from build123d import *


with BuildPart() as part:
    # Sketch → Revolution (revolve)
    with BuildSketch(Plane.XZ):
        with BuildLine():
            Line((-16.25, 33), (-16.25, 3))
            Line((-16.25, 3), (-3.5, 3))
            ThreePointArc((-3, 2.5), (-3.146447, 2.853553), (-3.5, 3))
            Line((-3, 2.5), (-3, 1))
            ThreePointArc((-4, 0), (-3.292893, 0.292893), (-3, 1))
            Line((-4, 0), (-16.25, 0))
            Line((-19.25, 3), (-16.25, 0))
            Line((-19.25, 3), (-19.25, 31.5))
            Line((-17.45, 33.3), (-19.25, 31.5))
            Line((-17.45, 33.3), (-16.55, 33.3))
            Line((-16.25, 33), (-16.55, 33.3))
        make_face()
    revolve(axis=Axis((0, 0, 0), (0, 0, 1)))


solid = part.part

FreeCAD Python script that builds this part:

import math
import FreeCAD as App
import Part
import Sketcher
from FreeCAD import Vector
Q = App.Units.Quantity

doc = App.newDocument("Part")
params = doc.addObject("Spreadsheet::Sheet", "Params")
for row, (alias, value) in enumerate([
    ("sketch1_radius", "0.999999 mm"),
    ("sketch1_radius2", "0.500001 mm"),
    ("sketch1_height", "30 mm"),
    ("sketch1_width", "0.9 mm"),
    ("sketch1_height2", "28.5 mm"),
    ("revolution_angle", "360 deg"),
], start=1):
    params.set(f"A{row}", alias)
    params.set(f"B{row}", "=" + value)
    params.setAlias(f"B{row}", alias)

body = doc.addObject("PartDesign::Body", "Body")

sketch1 = doc.addObject("Sketcher::SketchObject", "Sketch")
body.addObject(sketch1)
sketch1.AttachmentSupport = (doc.XZ_Plane, [""])
sketch1.MapMode = "FlatFace"
sketch1.addGeometry(Part.LineSegment(Vector(-16.25, 3, 0), Vector(-16.25, 33, 0)), False)
sketch1.addGeometry(Part.LineSegment(Vector(-16.25, 33, 0), Vector(-16.55, 33.3, 0)), False)
sketch1.addGeometry(Part.LineSegment(Vector(-16.55, 33.3, 0), Vector(-17.45, 33.3, 0)), False)
sketch1.addGeometry(Part.LineSegment(Vector(-17.45, 33.3, 0), Vector(-19.25, 31.5, 0)), False)
sketch1.addGeometry(Part.LineSegment(Vector(-19.25, 31.5, 0), Vector(-19.25, 3, 0)), False)
sketch1.addGeometry(Part.LineSegment(Vector(-19.25, 3, 0), Vector(-16.25, 0, 0)), False)
sketch1.addGeometry(Part.LineSegment(Vector(-16.25, 0, 0), Vector(-4, 0, 0)), False)
sketch1.addGeometry(Part.ArcOfCircle(Part.Circle(Vector(-4, 1, 0), Vector(0, 0, 1), 1), math.radians(-90), math.radians(0)), False)
sketch1.addGeometry(Part.LineSegment(Vector(-3, 1, 0), Vector(-3, 2.5, 0)), False)
sketch1.addGeometry(Part.ArcOfCircle(Part.Circle(Vector(-3.5, 2.5, 0), Vector(0, 0, 1), 0.5), math.radians(0), math.radians(90)), False)
sketch1.addGeometry(Part.LineSegment(Vector(-3.5, 3, 0), Vector(-16.25, 3, 0)), False)
sketch1.addConstraint(Sketcher.Constraint("Coincident", 0, 2, 1, 1))
sketch1.addConstraint(Sketcher.Constraint("Coincident", 1, 2, 2, 1))
sketch1.addConstraint(Sketcher.Constraint("Coincident", 2, 2, 3, 1))
sketch1.addConstraint(Sketcher.Constraint("Coincident", 3, 2, 4, 1))
sketch1.addConstraint(Sketcher.Constraint("Coincident", 4, 2, 5, 1))
sketch1.addConstraint(Sketcher.Constraint("Coincident", 5, 2, 6, 1))
sketch1.addConstraint(Sketcher.Constraint("Tangent", 6, 2, 7, 1))
sketch1.addConstraint(Sketcher.Constraint("Tangent", 7, 2, 8, 1))
sketch1.addConstraint(Sketcher.Constraint("Coincident", 8, 2, 9, 1))
sketch1.addConstraint(Sketcher.Constraint("Coincident", 9, 2, 10, 1))
sketch1.addConstraint(Sketcher.Constraint("Coincident", 10, 2, 0, 1))
sketch1.addConstraint(Sketcher.Constraint("Vertical", 0))
sketch1.addConstraint(Sketcher.Constraint("Horizontal", 2))
sketch1.addConstraint(Sketcher.Constraint("Vertical", 4))
sketch1.addConstraint(Sketcher.Constraint("Horizontal", 6))
sketch1.addConstraint(Sketcher.Constraint("Vertical", 8))
sketch1.addConstraint(Sketcher.Constraint("Horizontal", 10))
sketch1.addConstraint(Sketcher.Constraint("PointOnObject", 5, 2, -1))
sketch1.addConstraint(Sketcher.Constraint("Perpendicular", 1, 3))
sketch1.addConstraint(Sketcher.Constraint("Perpendicular", 3, 5))
sketch1.addConstraint(Sketcher.Constraint("Horizontal", 9, 3, 8, 2))
sketch1.addConstraint(Sketcher.Constraint("Horizontal", 4, 2, 9, 2))
sketch1.addConstraint(Sketcher.Constraint("Vertical", 0, 2, 5, 2))
sketch1.addConstraint(Sketcher.Constraint("Radius", 7, Q("0.999999 mm")))
sketch1.addConstraint(Sketcher.Constraint("Radius", 9, Q("0.500001 mm")))
sketch1.addConstraint(Sketcher.Constraint("DistanceY", 0, 1, 0, 2, Q("30 mm")))
sketch1.addConstraint(Sketcher.Constraint("Angle", 1, Q("135 deg")))
sketch1.addConstraint(Sketcher.Constraint("DistanceX", 2, 2, 2, 1, Q("0.9 mm")))
sketch1.addConstraint(Sketcher.Constraint("DistanceY", 4, 2, 4, 1, Q("28.5 mm")))
sketch1.addConstraint(Sketcher.Constraint("DistanceY", 8, 1, 8, 2, Q("1.5 mm")))
sketch1.addConstraint(Sketcher.Constraint("DistanceX", 7, 3, -1, 1, Q("3.999999 mm")))
sketch1.addConstraint(Sketcher.Constraint("DistanceX", 6, 1, 6, 2, Q("12.25 mm")))
sketch1.addConstraint(Sketcher.Constraint("DistanceX", 10, 2, 10, 1, Q("12.75 mm")))
sketch1.setExpression("Constraints[23]", "Params.sketch1_radius")
sketch1.setExpression("Constraints[24]", "Params.sketch1_radius2")
sketch1.setExpression("Constraints[25]", "Params.sketch1_height")
sketch1.setExpression("Constraints[27]", "Params.sketch1_width")
sketch1.setExpression("Constraints[28]", "Params.sketch1_height2")
revolution = doc.addObject("PartDesign::Revolution", "Revolution")
body.addObject(revolution)
revolution.Profile = sketch1
revolution.ReferenceAxis = (sketch1, ["V_Axis"])
revolution.setExpression("Angle", "Params.revolution_angle")

doc.recompute()
